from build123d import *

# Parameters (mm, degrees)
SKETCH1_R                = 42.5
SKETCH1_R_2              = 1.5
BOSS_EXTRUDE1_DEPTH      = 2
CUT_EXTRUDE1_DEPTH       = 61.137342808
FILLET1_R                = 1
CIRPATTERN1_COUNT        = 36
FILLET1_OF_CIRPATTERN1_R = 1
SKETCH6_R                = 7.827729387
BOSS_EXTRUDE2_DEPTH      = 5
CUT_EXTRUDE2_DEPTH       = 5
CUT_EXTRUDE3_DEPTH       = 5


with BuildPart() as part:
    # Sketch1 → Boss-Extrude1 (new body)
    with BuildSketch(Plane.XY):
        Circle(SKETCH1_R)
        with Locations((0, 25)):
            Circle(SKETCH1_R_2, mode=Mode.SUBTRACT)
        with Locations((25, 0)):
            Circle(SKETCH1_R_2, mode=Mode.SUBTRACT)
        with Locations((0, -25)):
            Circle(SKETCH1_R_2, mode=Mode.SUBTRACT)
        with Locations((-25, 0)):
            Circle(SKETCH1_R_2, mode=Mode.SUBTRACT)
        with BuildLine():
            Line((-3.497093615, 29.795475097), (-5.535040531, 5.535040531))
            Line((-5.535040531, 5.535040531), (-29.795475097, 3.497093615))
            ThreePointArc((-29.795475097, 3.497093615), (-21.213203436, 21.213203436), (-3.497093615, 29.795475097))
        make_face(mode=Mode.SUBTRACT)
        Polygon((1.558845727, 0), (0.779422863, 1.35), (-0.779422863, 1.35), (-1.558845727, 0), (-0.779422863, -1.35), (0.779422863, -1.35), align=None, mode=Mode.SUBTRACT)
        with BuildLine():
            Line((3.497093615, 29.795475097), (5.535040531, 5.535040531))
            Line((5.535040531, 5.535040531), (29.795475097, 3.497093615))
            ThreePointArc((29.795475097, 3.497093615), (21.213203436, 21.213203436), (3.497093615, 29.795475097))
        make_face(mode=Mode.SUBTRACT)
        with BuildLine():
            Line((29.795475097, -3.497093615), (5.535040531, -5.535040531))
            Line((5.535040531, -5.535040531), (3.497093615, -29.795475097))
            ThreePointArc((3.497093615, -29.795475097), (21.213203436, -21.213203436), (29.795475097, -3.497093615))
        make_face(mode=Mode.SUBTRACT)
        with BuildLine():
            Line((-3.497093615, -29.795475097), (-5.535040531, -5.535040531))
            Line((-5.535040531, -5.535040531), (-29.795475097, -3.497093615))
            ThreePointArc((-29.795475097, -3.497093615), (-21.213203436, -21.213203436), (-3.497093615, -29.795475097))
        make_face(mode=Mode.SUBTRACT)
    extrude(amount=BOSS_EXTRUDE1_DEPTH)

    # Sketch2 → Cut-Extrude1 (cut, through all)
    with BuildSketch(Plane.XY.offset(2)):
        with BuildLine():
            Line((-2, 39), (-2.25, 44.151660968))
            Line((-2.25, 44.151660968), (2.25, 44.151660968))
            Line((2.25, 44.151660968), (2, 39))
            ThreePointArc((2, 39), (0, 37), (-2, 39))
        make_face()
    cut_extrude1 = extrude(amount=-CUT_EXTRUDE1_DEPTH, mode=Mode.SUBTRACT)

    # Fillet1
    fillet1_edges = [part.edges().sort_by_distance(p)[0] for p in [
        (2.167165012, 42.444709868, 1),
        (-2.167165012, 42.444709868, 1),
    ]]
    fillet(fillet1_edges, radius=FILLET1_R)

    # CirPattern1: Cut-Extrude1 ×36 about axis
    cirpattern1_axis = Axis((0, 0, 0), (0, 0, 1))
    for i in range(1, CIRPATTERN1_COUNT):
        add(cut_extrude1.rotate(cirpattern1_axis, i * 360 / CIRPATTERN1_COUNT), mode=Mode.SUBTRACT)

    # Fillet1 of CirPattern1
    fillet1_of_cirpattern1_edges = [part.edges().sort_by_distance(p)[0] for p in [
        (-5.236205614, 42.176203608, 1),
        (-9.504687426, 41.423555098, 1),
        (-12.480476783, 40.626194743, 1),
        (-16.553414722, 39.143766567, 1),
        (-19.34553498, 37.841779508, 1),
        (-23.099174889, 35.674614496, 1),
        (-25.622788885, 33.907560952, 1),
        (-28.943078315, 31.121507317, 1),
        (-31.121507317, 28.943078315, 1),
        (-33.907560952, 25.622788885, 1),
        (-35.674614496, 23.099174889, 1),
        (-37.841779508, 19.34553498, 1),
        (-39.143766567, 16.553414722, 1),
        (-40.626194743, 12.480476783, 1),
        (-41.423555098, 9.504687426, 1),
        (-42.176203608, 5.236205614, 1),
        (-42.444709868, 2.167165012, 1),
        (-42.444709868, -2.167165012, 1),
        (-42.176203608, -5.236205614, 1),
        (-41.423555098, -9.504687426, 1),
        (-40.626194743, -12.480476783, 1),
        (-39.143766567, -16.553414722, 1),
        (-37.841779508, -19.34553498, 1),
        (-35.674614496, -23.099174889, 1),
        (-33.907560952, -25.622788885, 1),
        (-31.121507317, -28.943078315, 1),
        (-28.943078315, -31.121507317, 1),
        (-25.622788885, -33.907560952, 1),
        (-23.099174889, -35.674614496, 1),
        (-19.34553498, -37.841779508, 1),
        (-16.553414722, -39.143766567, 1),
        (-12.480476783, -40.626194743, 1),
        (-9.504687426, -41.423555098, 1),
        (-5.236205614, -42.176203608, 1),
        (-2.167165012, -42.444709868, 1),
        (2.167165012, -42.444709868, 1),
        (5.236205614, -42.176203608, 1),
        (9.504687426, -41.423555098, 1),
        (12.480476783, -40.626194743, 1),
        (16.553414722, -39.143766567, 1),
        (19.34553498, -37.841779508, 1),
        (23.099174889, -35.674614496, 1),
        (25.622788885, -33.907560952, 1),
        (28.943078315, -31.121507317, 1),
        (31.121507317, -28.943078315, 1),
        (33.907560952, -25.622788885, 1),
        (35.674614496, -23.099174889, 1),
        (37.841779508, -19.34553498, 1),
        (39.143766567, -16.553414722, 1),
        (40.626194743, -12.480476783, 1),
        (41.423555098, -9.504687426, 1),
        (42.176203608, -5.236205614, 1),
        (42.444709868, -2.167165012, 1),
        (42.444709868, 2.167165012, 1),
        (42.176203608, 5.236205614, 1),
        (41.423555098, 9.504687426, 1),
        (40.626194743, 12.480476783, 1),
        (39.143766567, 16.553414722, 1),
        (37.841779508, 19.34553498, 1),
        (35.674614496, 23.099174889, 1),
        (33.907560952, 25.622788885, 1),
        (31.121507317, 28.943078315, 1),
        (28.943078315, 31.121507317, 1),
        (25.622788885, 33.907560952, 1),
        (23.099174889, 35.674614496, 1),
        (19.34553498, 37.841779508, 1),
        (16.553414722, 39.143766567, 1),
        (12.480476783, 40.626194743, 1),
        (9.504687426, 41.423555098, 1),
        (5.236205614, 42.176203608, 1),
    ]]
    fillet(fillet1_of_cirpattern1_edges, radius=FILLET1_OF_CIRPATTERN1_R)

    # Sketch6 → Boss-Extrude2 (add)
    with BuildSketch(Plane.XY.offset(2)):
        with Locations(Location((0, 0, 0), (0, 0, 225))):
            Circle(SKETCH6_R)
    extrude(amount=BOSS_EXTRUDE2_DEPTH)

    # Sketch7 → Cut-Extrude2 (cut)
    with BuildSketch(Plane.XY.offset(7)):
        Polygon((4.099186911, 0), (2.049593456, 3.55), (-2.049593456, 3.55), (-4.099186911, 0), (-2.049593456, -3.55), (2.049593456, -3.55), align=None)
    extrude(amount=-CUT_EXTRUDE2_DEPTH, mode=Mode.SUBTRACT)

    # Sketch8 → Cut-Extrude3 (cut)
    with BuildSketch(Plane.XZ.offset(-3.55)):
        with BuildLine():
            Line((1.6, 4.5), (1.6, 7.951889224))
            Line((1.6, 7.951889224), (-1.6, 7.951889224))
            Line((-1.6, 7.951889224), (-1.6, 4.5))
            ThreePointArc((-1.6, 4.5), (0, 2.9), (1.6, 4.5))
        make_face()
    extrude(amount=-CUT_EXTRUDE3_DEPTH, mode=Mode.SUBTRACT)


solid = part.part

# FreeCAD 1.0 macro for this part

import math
import FreeCAD as App
import Part
import Sketcher
Q = App.Units.Quantity


def edges_at(feature, points):
    """Names of the edges that pass closest to the given points."""
    edges = feature.Shape.Edges
    near = lambda p: min(range(len(edges)), key=lambda i: edges[i].distToShape(Part.Vertex(*p))[0])
    return sorted({f"Edge{near(p) + 1}" for p in points})


def add_polygon(sketch, points):
    """Adds a closed chain of lines whose ends are joined by coincident constraints."""
    first, n = sketch.GeometryCount, len(points)
    for a, b in zip(points, points[1:] + points[:1]):
        sketch.addGeometry(Part.LineSegment(App.Vector(*a, 0), App.Vector(*b, 0)), False)
    for i in range(n):
        sketch.addConstraint(Sketcher.Constraint("Coincident", first + i, 2, first + (i + 1) % n, 1))

doc = App.newDocument("Part")
body = doc.addObject("PartDesign::Body", "Body")

sketch1 = body.newObject("Sketcher::SketchObject", "Sketch")
sketch1.AttachmentSupport = (doc.getObject("XY_Plane"), [""])
sketch1.MapMode = "FlatFace"
sketch1.addGeometry(Part.Circle(App.Vector(0, 0, 0), App.Vector(0, 0, 1), 42.5), False)
sketch1.addGeometry(Part.LineSegment(App.Vector(-5.535041, -5.535041, 0), App.Vector(-3.497094, -29.795475, 0)), False)
sketch1.addGeometry(Part.ArcOfCircle(Part.Circle(App.Vector(0, 0, 0), App.Vector(0, 0, 1), 30), math.radians(-173.305824), math.radians(-96.694176)), False)
sketch1.addGeometry(Part.LineSegment(App.Vector(-29.795475, -3.497094, 0), App.Vector(-5.535041, -5.535041, 0)), False)
sketch1.addGeometry(Part.Circle(App.Vector(0, -25, 0), App.Vector(0, 0, 1), 1.5), False)
sketch1.addGeometry(Part.LineSegment(App.Vector(5.535041, -5.535041, 0), App.Vector(29.795475, -3.497094, 0)), False)
sketch1.addGeometry(Part.ArcOfCircle(Part.Circle(App.Vector(0, 0, 0), App.Vector(0, 0, 1), 30), math.radians(-83.305824), math.radians(-6.694176)), False)
sketch1.addGeometry(Part.LineSegment(App.Vector(3.497094, -29.795475, 0), App.Vector(5.535041, -5.535041, 0)), False)
sketch1.addGeometry(Part.Circle(App.Vector(-25, 0, 0), App.Vector(0, 0, 1), 1.5), False)
sketch1.addGeometry(Part.ArcOfCircle(Part.Circle(App.Vector(0, 0, 0), App.Vector(0, 0, 1), 30), math.radians(96.694176), math.radians(173.305824)), False)
sketch1.addGeometry(Part.LineSegment(App.Vector(-3.497094, 29.795475, 0), App.Vector(-5.535041, 5.535041, 0)), False)
sketch1.addGeometry(Part.LineSegment(App.Vector(-5.535041, 5.535041, 0), App.Vector(-29.795475, 3.497094, 0)), False)
add_polygon(sketch1, [(0.779423, 1.35), (1.558846, 0), (0.779423, -1.35), (-0.779423, -1.35), (-1.558846, 0), (-0.779423, 1.35)])
sketch1.addGeometry(Part.Circle(App.Vector(25, 0, 0), App.Vector(0, 0, 1), 1.5), False)
sketch1.addGeometry(Part.Circle(App.Vector(0, 25, 0), App.Vector(0, 0, 1), 1.5), False)
sketch1.addGeometry(Part.LineSegment(App.Vector(5.535041, 5.535041, 0), App.Vector(3.497094, 29.795475, 0)), False)
sketch1.addGeometry(Part.ArcOfCircle(Part.Circle(App.Vector(0, 0, 0), App.Vector(0, 0, 1), 30), math.radians(6.694176), math.radians(83.305824)), False)
sketch1.addGeometry(Part.LineSegment(App.Vector(29.795475, 3.497094, 0), App.Vector(5.535041, 5.535041, 0)), False)
sketch1.addConstraint([
    Sketcher.Constraint("Coincident", 1, 2, 2, 2),
    Sketcher.Constraint("Coincident", 2, 1, 3, 1),
    Sketcher.Constraint("Coincident", 3, 2, 1, 1),
    Sketcher.Constraint("Coincident", 5, 2, 6, 2),
    Sketcher.Constraint("Coincident", 6, 1, 7, 1),
    Sketcher.Constraint("Coincident", 7, 2, 5, 1),
    Sketcher.Constraint("Coincident", 9, 1, 10, 1),
    Sketcher.Constraint("Coincident", 10, 2, 11, 1),
    Sketcher.Constraint("Coincident", 11, 2, 9, 2),
    Sketcher.Constraint("Coincident", 20, 2, 21, 2),
    Sketcher.Constraint("Coincident", 21, 1, 22, 1),
    Sketcher.Constraint("Coincident", 22, 2, 20, 1),
    Sketcher.Constraint("Horizontal", 14),
    Sketcher.Constraint("Horizontal", 17),
    Sketcher.Constraint("Coincident", 0, 3, -1, 1),
    Sketcher.Constraint("Coincident", 2, 3, -1, 1),
    Sketcher.Constraint("Coincident", 6, 3, -1, 1),
    Sketcher.Constraint("Coincident", 9, 3, -1, 1),
    Sketcher.Constraint("Coincident", 21, 3, -1, 1),
    Sketcher.Constraint("Equal", 2, 6),
    Sketcher.Constraint("Equal", 4, 8),
    Sketcher.Constraint("Equal", 6, 9),
    Sketcher.Constraint("Equal", 8, 18),
    Sketcher.Constraint("Equal", 18, 19),
    Sketcher.Constraint("Equal", 9, 21),
    Sketcher.Constraint("Symmetric", 8, 3, 18, 3, -1, 1),
    Sketcher.Constraint("Symmetric", 4, 3, 19, 3, -1, 1),
    Sketcher.Constraint("Symmetric", 7, 2, 10, 2, -1, 1),
    Sketcher.Constraint("Symmetric", 12, 2, 15, 2, -1, 1),
    Sketcher.Constraint("Symmetric", 13, 2, 16, 2, -1, 1),
    Sketcher.Constraint("Symmetric", 3, 2, 22, 2, -1, 1),
    Sketcher.Constraint("Symmetric", 3, 2, 7, 2, -2),
    Sketcher.Constraint("PointOnObject", 4, 3, -2),
    Sketcher.Constraint("PointOnObject", 8, 3, -1),
    Sketcher.Constraint("PointOnObject", 12, 2, -1),
    Sketcher.Constraint("Perpendicular", 1, 5),
    Sketcher.Constraint("Perpendicular", 3, 7),
    Sketcher.Constraint("Parallel", 7, 10),
    Sketcher.Constraint("Parallel", 5, 11),
    Sketcher.Constraint("Parallel", 12, 15),
    Sketcher.Constraint("Perpendicular", 11, 20),
    Sketcher.Constraint("Perpendicular", 10, 22),
    Sketcher.Constraint("Horizontal", 2, 1, 5, 2),
    Sketcher.Constraint("Vertical", 14, 2, 16, 2),
    Sketcher.Constraint("Equal", 1, 3),
    Sketcher.Constraint("Diameter", 0, 85.0),
    Sketcher.Constraint("Diameter", 4, 3.0),
    Sketcher.Constraint("Radius", 2, 30.0),
    Sketcher.Constraint("Angle", 12, Q("-60 deg")),
    Sketcher.Constraint("DistanceY", 4, 3, -1, 1, 25.0),
    Sketcher.Constraint("DistanceX", 8, 3, -1, 1, 25.0),
    Sketcher.Constraint("DistanceY", 13, 2, -1, 1, 1.35),
    Sketcher.Constraint("Distance", 1, 24.345881),
    Sketcher.Constraint("DistanceX", 14, 2, 14, 1, 1.558846),
    Sketcher.Constraint("DistanceX", 3, 2, -1, 1, 5.535041),
])
pad1 = body.newObject("PartDesign::Pad", "Pad")
pad1.Profile = sketch1
pad1.Length = 2

sketch2 = body.newObject("Sketcher::SketchObject", "Sketch001")
sketch2.AttachmentSupport = (doc.getObject("XY_Plane"), [""])
sketch2.MapMode = "FlatFace"
sketch2.AttachmentOffset = App.Placement(App.Vector(0, 0, 2), App.Rotation())
sketch2.addGeometry([
    Part.LineSegment(App.Vector(-2.25, 44.151661, 0), App.Vector(-2, 39, 0)),
    Part.ArcOfCircle(Part.Circle(App.Vector(0, 39, 0), App.Vector(0, 0, 1), 2), math.radians(180), math.radians(360)),
    Part.LineSegment(App.Vector(2, 39, 0), App.Vector(2.25, 44.151661, 0)),
    Part.LineSegment(App.Vector(2.25, 44.151661, 0), App.Vector(-2.25, 44.151661, 0)),
], False)
sketch2.addConstraint([
    Sketcher.Constraint("Coincident", 0, 2, 1, 1),
    Sketcher.Constraint("Coincident", 1, 2, 2, 1),
    Sketcher.Constraint("Coincident", 2, 2, 3, 1),
    Sketcher.Constraint("Coincident", 3, 2, 0, 1),
    Sketcher.Constraint("Horizontal", 3),
    Sketcher.Constraint("Symmetric", 0, 2, 1, 2, -2),
    Sketcher.Constraint("Horizontal", 1, 3, 0, 2),
    Sketcher.Constraint("Equal", 0, 2),
    Sketcher.Constraint("Radius", 1, 2.0),
    Sketcher.Constraint("DistanceX", 3, 2, 3, 1, 4.5),
    Sketcher.Constraint("DistanceY", -1, 1, 1, 3, 39.0),
    Sketcher.Constraint("DistanceY", -1, 1, 2, 2, 44.151661),
])
pocket1 = body.newObject("PartDesign::Pocket", "Pocket")
pocket1.Profile = sketch2
pocket1.Type = "ThroughAll"
doc.recompute()

fillet = body.newObject("PartDesign::Fillet", "Fillet")
fillet.Base = (pocket1, edges_at(pocket1, [(2.167, 42.445, 1), (-2.167, 42.445, 1)]))
fillet.Radius = 1
doc.recompute()

polarpattern = body.newObject("PartDesign::PolarPattern", "PolarPattern")
polarpattern.Originals = [pocket1]
polarpattern.Axis = (doc.getObject("Z_Axis"), [""])
polarpattern.Angle = 360
polarpattern.Occurrences = 36
body.Tip = polarpattern
doc.recompute()

fillet2 = body.newObject("PartDesign::Fillet", "Fillet001")
fillet2.Base = (polarpattern, edges_at(polarpattern, [
    (-5.236, 42.176, 1),
    (-9.505, 41.424, 1),
    (-12.48, 40.626, 1),
    (-16.553, 39.144, 1),
    (-19.346, 37.842, 1),
    (-23.099, 35.675, 1),
    (-25.623, 33.908, 1),
    (-28.943, 31.122, 1),
    (-31.122, 28.943, 1),
    (-33.908, 25.623, 1),
    (-35.675, 23.099, 1),
    (-37.842, 19.346, 1),
    (-39.144, 16.553, 1),
    (-40.626, 12.48, 1),
    (-41.424, 9.505, 1),
    (-42.176, 5.236, 1),
    (-42.445, 2.167, 1),
    (-42.445, -2.167, 1),
    (-42.176, -5.236, 1),
    (-41.424, -9.505, 1),
    (-40.626, -12.48, 1),
    (-39.144, -16.553, 1),
    (-37.842, -19.346, 1),
    (-35.675, -23.099, 1),
    (-33.908, -25.623, 1),
    (-31.122, -28.943, 1),
    (-28.943, -31.122, 1),
    (-25.623, -33.908, 1),
    (-23.099, -35.675, 1),
    (-19.346, -37.842, 1),
    (-16.553, -39.144, 1),
    (-12.48, -40.626, 1),
    (-9.505, -41.424, 1),
    (-5.236, -42.176, 1),
    (-2.167, -42.445, 1),
    (2.167, -42.445, 1),
    (5.236, -42.176, 1),
    (9.505, -41.424, 1),
    (12.48, -40.626, 1),
    (16.553, -39.144, 1),
    (19.346, -37.842, 1),
    (23.099, -35.675, 1),
    (25.623, -33.908, 1),
    (28.943, -31.122, 1),
    (31.122, -28.943, 1),
    (33.908, -25.623, 1),
    (35.675, -23.099, 1),
    (37.842, -19.346, 1),
    (39.144, -16.553, 1),
    (40.626, -12.48, 1),
    (41.424, -9.505, 1),
    (42.176, -5.236, 1),
    (42.445, -2.167, 1),
    (42.445, 2.167, 1),
    (42.176, 5.236, 1),
    (41.424, 9.505, 1),
    (40.626, 12.48, 1),
    (39.144, 16.553, 1),
    (37.842, 19.346, 1),
    (35.675, 23.099, 1),
    (33.908, 25.623, 1),
    (31.122, 28.943, 1),
    (28.943, 31.122, 1),
    (25.623, 33.908, 1),
    (23.099, 35.675, 1),
    (19.346, 37.842, 1),
    (16.553, 39.144, 1),
    (12.48, 40.626, 1),
    (9.505, 41.424, 1),
    (5.236, 42.176, 1),
]))
fillet2.Radius = 1

sketch3 = body.newObject("Sketcher::SketchObject", "Sketch002")
sketch3.AttachmentSupport = (doc.getObject("XY_Plane"), [""])
sketch3.MapMode = "FlatFace"
sketch3.AttachmentOffset = App.Placement(App.Vector(0, 0, 2), App.Rotation())
sketch3.addGeometry(Part.Circle(App.Vector(0, 0, 0), App.Vector(0, 0, 1), 7.827729), False)
sketch3.addConstraint([
    Sketcher.Constraint("Coincident", 0, 3, -1, 1),
    Sketcher.Constraint("Diameter", 0, 15.655459),
])
pad2 = body.newObject("PartDesign::Pad", "Pad001")
pad2.Profile = sketch3
pad2.Length = 5

sketch4 = body.newObject("Sketcher::SketchObject", "Sketch003")
sketch4.AttachmentSupport = (doc.getObject("XY_Plane"), [""])
sketch4.MapMode = "FlatFace"
sketch4.AttachmentOffset = App.Placement(App.Vector(0, 0, 7), App.Rotation())
add_polygon(sketch4, [(4.099187, 0), (2.049593, 3.55), (-2.049593, 3.55), (-4.099187, 0), (-2.049593, -3.55), (2.049593, -3.55)])
sketch4.addConstraint([
    Sketcher.Constraint("Horizontal", 1),
    Sketcher.Constraint("Horizontal", 4),
    Sketcher.Constraint("Symmetric", 0, 2, 3, 2, -1, 1),
    Sketcher.Constraint("Symmetric", 2, 2, 5, 2, -1, 1),
    Sketcher.Constraint("PointOnObject", 2, 2, -1),
    Sketcher.Constraint("Parallel", 2, 5),
    Sketcher.Constraint("Vertical", 1, 2, 3, 2),
    Sketcher.Constraint("Angle", 0, Q("120 deg")),
    Sketcher.Constraint("DistanceY", 3, 2, 1, 2, 7.1),
    Sketcher.Constraint("DistanceX", 1, 2, 1, 1, 4.099187),
])
pocket2 = body.newObject("PartDesign::Pocket", "Pocket001")
pocket2.Profile = sketch4
pocket2.Length = 5

sketch5 = body.newObject("Sketcher::SketchObject", "Sketch004")
sketch5.AttachmentSupport = (doc.getObject("XZ_Plane"), [""])
sketch5.MapMode = "FlatFace"
sketch5.AttachmentOffset = App.Placement(App.Vector(0, 0, -3.55), App.Rotation())
sketch5.addGeometry([
    Part.LineSegment(App.Vector(1.6, 4.5, 0), App.Vector(1.6, 7.951889, 0)),
    Part.LineSegment(App.Vector(1.6, 7.951889, 0), App.Vector(-1.6, 7.951889, 0)),
    Part.LineSegment(App.Vector(-1.6, 7.951889, 0), App.Vector(-1.6, 4.5, 0)),
    Part.ArcOfCircle(Part.Circle(App.Vector(0, 4.5, 0), App.Vector(0, 0, 1), 1.6), math.radians(180), math.radians(360)),
], False)
sketch5.addConstraint([
    Sketcher.Constraint("Coincident", 0, 2, 1, 1),
    Sketcher.Constraint("Coincident", 1, 2, 2, 1),
    Sketcher.Constraint("Tangent", 2, 2, 3, 1),
    Sketcher.Constraint("Tangent", 3, 2, 0, 1),
    Sketcher.Constraint("Vertical", 0),
    Sketcher.Constraint("Horizontal", 1),
    Sketcher.Constraint("Vertical", 2),
    Sketcher.Constraint("PointOnObject", 3, 3, -2),
    Sketcher.Constraint("Radius", 3, 1.6),
    Sketcher.Constraint("DistanceY", -1, 1, 3, 3, 4.5),
    Sketcher.Constraint("DistanceY", 0, 1, 0, 2, 3.451889),
])
pocket3 = body.newObject("PartDesign::Pocket", "Pocket002")
pocket3.Profile = sketch5
pocket3.Length = 5

doc.recompute()
